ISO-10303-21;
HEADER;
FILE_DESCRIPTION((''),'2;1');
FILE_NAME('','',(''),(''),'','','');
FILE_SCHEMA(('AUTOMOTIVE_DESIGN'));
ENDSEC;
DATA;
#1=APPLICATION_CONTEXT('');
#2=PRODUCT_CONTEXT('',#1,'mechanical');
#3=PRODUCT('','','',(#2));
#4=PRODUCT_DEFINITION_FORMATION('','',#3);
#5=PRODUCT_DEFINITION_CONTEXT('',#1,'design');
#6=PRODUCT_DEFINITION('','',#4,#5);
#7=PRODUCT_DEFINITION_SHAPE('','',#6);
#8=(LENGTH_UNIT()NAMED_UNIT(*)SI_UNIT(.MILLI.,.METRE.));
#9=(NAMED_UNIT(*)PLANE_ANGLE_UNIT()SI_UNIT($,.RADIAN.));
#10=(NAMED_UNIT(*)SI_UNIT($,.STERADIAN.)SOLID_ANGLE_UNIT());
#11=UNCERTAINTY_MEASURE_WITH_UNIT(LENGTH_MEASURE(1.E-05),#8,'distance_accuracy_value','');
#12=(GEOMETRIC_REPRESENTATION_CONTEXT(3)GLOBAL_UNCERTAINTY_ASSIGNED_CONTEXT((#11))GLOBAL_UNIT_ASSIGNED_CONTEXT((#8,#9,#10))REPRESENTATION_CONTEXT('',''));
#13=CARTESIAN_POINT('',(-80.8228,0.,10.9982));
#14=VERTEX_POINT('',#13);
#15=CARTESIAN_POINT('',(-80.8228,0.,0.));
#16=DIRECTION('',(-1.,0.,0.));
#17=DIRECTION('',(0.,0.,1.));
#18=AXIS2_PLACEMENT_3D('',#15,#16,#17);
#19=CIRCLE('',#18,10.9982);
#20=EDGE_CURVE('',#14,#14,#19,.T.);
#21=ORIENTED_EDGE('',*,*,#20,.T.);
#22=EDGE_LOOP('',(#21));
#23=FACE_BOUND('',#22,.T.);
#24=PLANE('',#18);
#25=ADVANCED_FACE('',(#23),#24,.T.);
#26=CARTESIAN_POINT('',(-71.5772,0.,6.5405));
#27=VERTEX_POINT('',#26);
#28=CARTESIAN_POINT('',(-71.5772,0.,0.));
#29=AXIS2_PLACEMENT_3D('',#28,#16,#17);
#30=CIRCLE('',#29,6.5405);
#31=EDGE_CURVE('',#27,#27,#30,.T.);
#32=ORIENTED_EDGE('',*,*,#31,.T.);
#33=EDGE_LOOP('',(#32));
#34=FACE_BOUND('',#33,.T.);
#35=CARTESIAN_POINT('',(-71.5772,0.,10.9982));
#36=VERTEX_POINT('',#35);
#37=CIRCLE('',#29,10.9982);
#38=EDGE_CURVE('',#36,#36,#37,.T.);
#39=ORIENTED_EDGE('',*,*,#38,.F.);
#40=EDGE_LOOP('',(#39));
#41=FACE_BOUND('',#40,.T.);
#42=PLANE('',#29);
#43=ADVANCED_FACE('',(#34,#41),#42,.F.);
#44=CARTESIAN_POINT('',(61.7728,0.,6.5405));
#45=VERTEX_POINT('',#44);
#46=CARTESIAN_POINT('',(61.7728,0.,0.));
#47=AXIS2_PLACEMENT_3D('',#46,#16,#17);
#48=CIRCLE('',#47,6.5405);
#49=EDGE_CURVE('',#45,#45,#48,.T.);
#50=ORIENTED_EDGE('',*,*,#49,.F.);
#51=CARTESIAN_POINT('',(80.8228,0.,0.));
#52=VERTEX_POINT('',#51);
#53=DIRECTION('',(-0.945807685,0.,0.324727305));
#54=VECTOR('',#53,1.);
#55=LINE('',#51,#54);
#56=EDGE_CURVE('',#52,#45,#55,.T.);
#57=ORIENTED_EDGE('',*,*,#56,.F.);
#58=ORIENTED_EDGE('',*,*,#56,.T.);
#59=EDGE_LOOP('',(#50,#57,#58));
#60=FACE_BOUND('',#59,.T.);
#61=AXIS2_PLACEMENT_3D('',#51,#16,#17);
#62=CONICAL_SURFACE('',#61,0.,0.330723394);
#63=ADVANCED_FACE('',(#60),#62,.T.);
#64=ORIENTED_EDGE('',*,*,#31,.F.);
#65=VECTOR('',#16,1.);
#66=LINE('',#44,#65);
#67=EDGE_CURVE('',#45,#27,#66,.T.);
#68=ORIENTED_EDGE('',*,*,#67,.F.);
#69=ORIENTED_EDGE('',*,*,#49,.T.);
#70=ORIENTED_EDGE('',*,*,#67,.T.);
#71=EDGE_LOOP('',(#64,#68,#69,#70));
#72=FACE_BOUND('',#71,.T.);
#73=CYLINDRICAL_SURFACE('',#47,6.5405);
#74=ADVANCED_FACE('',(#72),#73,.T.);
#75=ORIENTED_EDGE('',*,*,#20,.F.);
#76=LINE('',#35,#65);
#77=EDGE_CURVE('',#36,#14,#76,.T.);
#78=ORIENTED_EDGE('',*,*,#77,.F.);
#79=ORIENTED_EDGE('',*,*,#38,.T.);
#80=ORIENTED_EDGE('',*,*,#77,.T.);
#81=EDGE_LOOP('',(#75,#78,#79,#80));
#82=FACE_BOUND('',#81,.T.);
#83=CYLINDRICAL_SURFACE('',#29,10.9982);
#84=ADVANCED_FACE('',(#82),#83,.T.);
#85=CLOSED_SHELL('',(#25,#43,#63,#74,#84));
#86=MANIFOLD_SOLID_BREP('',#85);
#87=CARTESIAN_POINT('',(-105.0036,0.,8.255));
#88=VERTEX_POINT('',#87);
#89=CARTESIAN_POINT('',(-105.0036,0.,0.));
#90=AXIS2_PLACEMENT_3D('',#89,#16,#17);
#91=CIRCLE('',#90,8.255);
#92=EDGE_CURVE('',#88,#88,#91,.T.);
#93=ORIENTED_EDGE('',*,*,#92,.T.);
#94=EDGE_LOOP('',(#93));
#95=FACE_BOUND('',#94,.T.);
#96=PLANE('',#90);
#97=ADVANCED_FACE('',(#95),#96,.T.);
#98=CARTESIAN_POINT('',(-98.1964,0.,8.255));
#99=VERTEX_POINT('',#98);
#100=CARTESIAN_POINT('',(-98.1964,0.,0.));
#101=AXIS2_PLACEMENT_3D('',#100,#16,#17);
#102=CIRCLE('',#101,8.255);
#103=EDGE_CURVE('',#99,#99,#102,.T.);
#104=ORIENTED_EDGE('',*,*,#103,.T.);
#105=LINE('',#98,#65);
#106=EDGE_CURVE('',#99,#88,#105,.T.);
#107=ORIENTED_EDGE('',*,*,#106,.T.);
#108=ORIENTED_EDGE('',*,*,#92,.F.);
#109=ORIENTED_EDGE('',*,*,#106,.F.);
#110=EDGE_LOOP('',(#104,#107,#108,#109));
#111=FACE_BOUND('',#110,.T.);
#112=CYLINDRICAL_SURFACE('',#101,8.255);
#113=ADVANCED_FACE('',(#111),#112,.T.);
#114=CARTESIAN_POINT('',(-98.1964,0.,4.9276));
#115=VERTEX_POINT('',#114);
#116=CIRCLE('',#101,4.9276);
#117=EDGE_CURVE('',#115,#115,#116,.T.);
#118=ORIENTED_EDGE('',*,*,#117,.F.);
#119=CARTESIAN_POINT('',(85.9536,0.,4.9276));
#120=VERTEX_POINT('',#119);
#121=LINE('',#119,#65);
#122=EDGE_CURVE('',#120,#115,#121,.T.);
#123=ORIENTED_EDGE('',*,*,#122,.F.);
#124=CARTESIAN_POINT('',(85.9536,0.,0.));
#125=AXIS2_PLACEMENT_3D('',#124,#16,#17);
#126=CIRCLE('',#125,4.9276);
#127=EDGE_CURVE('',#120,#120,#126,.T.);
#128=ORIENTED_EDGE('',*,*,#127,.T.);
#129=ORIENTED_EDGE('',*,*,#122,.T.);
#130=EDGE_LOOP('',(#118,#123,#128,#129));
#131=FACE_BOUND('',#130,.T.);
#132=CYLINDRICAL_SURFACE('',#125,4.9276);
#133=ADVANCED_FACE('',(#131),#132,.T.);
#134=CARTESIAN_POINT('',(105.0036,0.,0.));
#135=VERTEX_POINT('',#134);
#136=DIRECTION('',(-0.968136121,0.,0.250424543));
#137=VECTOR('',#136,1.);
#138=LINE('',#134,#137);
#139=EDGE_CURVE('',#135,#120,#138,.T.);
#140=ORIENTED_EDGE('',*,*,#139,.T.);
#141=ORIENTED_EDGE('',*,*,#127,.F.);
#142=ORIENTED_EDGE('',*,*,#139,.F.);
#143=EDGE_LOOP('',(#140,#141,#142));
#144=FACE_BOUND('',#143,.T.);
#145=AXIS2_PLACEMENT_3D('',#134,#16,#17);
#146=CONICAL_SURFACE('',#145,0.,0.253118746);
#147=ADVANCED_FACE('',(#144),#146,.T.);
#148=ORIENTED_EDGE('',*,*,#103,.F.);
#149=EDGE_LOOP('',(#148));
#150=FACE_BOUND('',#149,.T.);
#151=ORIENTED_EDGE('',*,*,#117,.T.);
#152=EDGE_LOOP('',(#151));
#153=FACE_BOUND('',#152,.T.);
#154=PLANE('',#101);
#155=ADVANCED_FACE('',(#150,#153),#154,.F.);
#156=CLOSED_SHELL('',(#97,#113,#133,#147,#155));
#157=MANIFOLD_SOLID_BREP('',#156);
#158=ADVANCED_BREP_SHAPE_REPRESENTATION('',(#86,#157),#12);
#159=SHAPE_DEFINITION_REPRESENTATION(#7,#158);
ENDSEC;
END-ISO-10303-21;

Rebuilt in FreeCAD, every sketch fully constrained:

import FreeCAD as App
import Part
import Sketcher
from FreeCAD import Vector
Q = App.Units.Quantity


def add_polygon(sketch, points):
    """Adds a closed chain of lines whose ends are joined by coincident constraints."""
    first, n = sketch.GeometryCount, len(points)
    for a, b in zip(points, points[1:] + points[:1]):
        sketch.addGeometry(Part.LineSegment(App.Vector(*a, 0), App.Vector(*b, 0)), False)
    for i in range(n):
        sketch.addConstraint(Sketcher.Constraint("Coincident", first + i, 2, first + (i + 1) % n, 1))

doc = App.newDocument("Part")
body = doc.addObject("PartDesign::Body", "Body")

# Sketch on XZ plane
sketch1 = body.newObject("Sketcher::SketchObject", "Sketch")
sketch1.AttachmentSupport = (doc.getObject("XZ_Plane"), [""])
sketch1.MapMode = "FlatFace"
add_polygon(sketch1, [(-105, 8.3), (-105, 0), (105, 0), (86, 4.9), (-98.2, 4.9), (-98.2, 8.3)])  # lines 0-5
sketch1.addConstraint([
    Sketcher.Constraint("Vertical", 0),
    Sketcher.Constraint("Horizontal", 1),
    Sketcher.Constraint("Horizontal", 3),
    Sketcher.Constraint("Vertical", 4),
    Sketcher.Constraint("Horizontal", 5),
    Sketcher.Constraint("Symmetric", 0, 2, 1, 2, -1, 1),
    Sketcher.Constraint("DistanceX", 3, 2, 1, 2, Q("8 in")),
    Sketcher.Constraint("DistanceX", 3, 2, 3, 1, Q("7.25 in")),
    Sketcher.Constraint("DistanceX", 1, 1, 1, 2, Q("8.268 in")),
    Sketcher.Constraint("DistanceY", 0, 2, 0, 1, Q("0.325 in")),
    Sketcher.Constraint("DistanceY", 4, 1, 4, 2, Q("0.131 in")),
])
revolution = body.newObject("PartDesign::Revolution", "Revolution")
revolution.Profile = sketch1
revolution.ReferenceAxis = (sketch1, ["H_Axis"])
revolution.Angle = 360
body2 = doc.addObject("PartDesign::Body", "Body001")

# Sketch on XZ plane
sketch2 = body2.newObject("Sketcher::SketchObject", "Sketch001")
sketch2.AttachmentSupport = (doc.getObject("XZ_Plane001"), [""])
sketch2.MapMode = "FlatFace"
add_polygon(sketch2, [(-80.8, 11), (-80.8, 0), (80.8, 0), (61.8, 6.5), (-71.6, 6.5), (-71.6, 11)])  # lines 0-5
sketch2.addConstraint([
    Sketcher.Constraint("Vertical", 0),
    Sketcher.Constraint("Horizontal", 1),
    Sketcher.Constraint("Horizontal", 3),
    Sketcher.Constraint("Vertical", 4),
    Sketcher.Constraint("Horizontal", 5),
    Sketcher.Constraint("Symmetric", 0, 2, 1, 2, -1, 1),
    Sketcher.Constraint("DistanceX", 3, 2, 1, 2, Q("6 in")),
    Sketcher.Constraint("DistanceX", 3, 2, 3, 1, Q("5.25 in")),
    Sketcher.Constraint("DistanceX", 1, 1, 1, 2, Q("6.364 in")),
    Sketcher.Constraint("DistanceY", 0, 2, 0, 1, Q("0.433 in")),
    Sketcher.Constraint("DistanceY", 4, 1, 4, 2, Q("0.1755 in")),
])
revolution2 = body2.newObject("PartDesign::Revolution", "Revolution001")
revolution2.Profile = sketch2
revolution2.ReferenceAxis = (sketch2, ["H_Axis"])
revolution2.Angle = 360

doc.recompute()
